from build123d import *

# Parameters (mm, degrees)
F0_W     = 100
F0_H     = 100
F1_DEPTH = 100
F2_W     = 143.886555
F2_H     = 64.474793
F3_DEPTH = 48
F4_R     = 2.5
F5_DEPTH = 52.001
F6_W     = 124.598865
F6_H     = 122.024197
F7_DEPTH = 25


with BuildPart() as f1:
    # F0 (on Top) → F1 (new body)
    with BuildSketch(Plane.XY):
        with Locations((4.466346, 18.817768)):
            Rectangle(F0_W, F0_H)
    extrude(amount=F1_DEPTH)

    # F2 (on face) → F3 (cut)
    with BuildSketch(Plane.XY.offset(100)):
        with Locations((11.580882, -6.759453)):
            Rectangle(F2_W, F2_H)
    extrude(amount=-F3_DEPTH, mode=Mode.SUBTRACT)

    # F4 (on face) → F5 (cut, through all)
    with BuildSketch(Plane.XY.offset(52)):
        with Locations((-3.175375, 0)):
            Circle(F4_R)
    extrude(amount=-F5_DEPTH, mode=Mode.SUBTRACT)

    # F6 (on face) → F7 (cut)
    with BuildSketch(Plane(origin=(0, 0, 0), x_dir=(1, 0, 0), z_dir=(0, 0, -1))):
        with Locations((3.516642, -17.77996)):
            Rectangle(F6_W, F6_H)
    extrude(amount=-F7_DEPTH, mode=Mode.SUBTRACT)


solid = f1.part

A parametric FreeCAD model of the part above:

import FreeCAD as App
import Part
import Sketcher


def add_polygon(sketch, points):
    """Adds a closed chain of lines whose ends are joined by coincident constraints."""
    first, n = sketch.GeometryCount, len(points)
    for a, b in zip(points, points[1:] + points[:1]):
        sketch.addGeometry(Part.LineSegment(App.Vector(*a, 0), App.Vector(*b, 0)), False)
    for i in range(n):
        sketch.addConstraint(Sketcher.Constraint("Coincident", first + i, 2, first + (i + 1) % n, 1))

doc = App.newDocument("Part")
body = doc.addObject("PartDesign::Body", "Body")

# Sketch on XY plane
sketch1 = doc.addObject("Sketcher::SketchObject", "Sketch")
body.addObject(sketch1)
sketch1.AttachmentSupport = (doc.XY_Plane, [""])
sketch1.MapMode = "FlatFace"
add_polygon(sketch1, [(-46, 69), (-46, -31), (54, -31), (54, 69)])  # lines 0-3
sketch1.addConstraint(Sketcher.Constraint("Vertical", 0))
sketch1.addConstraint(Sketcher.Constraint("Horizontal", 1))
sketch1.addConstraint(Sketcher.Constraint("Vertical", 2))
sketch1.addConstraint(Sketcher.Constraint("Horizontal", 3))
sketch1.addConstraint(Sketcher.Constraint("Equal", 3, 0))
sketch1.addConstraint(Sketcher.Constraint("DistanceX", 1, 1, 1, 2, 100.0))
sketch1.addConstraint(Sketcher.Constraint("DistanceY", 0, 2, -1, 1, 31.182232))
sketch1.addConstraint(Sketcher.Constraint("DistanceX", 0, 2, -1, 1, 45.533654))
pad1 = doc.addObject("PartDesign::Pad", "Pad")
body.addObject(pad1)
pad1.Profile = sketch1
pad1.Length = 100

# Sketch on XY plane
sketch2 = doc.addObject("Sketcher::SketchObject", "Sketch001")
body.addObject(sketch2)
sketch2.AttachmentSupport = (doc.XY_Plane, [""])
sketch2.MapMode = "FlatFace"
sketch2.AttachmentOffset = App.Placement(App.Vector(0, 0, 100), App.Rotation())
add_polygon(sketch2, [(-60, 25), (-60, -39), (84, -39), (84, 25)])  # lines 0-3
sketch2.addConstraint(Sketcher.Constraint("Vertical", 0))
sketch2.addConstraint(Sketcher.Constraint("Horizontal", 1))
sketch2.addConstraint(Sketcher.Constraint("Vertical", 2))
sketch2.addConstraint(Sketcher.Constraint("Horizontal", 3))
sketch2.addConstraint(Sketcher.Constraint("DistanceX", 1, 1, 1, 2, 143.886555))
sketch2.addConstraint(Sketcher.Constraint("DistanceY", 0, 2, 0, 1, 64.474793))
sketch2.addConstraint(Sketcher.Constraint("DistanceY", 0, 2, -1, 1, 38.99685))
sketch2.addConstraint(Sketcher.Constraint("DistanceX", -1, 1, 1, 2, 83.524159))
pocket1 = doc.addObject("PartDesign::Pocket", "Pocket")
body.addObject(pocket1)
pocket1.Profile = sketch2
pocket1.Length = 48

# Sketch on XY plane
sketch3 = doc.addObject("Sketcher::SketchObject", "Sketch002")
body.addObject(sketch3)
sketch3.AttachmentSupport = (doc.XY_Plane, [""])
sketch3.MapMode = "FlatFace"
sketch3.AttachmentOffset = App.Placement(App.Vector(0, 0, 52), App.Rotation())
sketch3.addGeometry(Part.Circle(App.Vector(-3.2, 0, 0), App.Vector(0, 0, 1), 2.5), False)
sketch3.addConstraint(Sketcher.Constraint("PointOnObject", 0, 3, -1))
sketch3.addConstraint(Sketcher.Constraint("Diameter", 0, 5.0))
sketch3.addConstraint(Sketcher.Constraint("DistanceX", 0, 3, -1, 1, 3.175375))
pocket2 = doc.addObject("PartDesign::Pocket", "Pocket001")
body.addObject(pocket2)
pocket2.Profile = sketch3
pocket2.Type = "ThroughAll"

# Sketch on XY plane
sketch4 = doc.addObject("Sketcher::SketchObject", "Sketch003")
body.addObject(sketch4)
sketch4.AttachmentSupport = (doc.XY_Plane, [""])
sketch4.MapMode = "FlatFace"
add_polygon(sketch4, [(-59, -43), (-59, 79), (66, 79), (66, -43)])  # lines 0-3
sketch4.addConstraint(Sketcher.Constraint("Vertical", 0))
sketch4.addConstraint(Sketcher.Constraint("Horizontal", 1))
sketch4.addConstraint(Sketcher.Constraint("Vertical", 2))
sketch4.addConstraint(Sketcher.Constraint("Horizontal", 3))
sketch4.addConstraint(Sketcher.Constraint("DistanceX", 1, 1, 1, 2, 124.598865))
sketch4.addConstraint(Sketcher.Constraint("DistanceY", 0, 1, 0, 2, 122.024197))
sketch4.addConstraint(Sketcher.Constraint("DistanceX", 0, 2, -1, 1, 58.78279))
sketch4.addConstraint(Sketcher.Constraint("DistanceY", -1, 1, 0, 2, 78.792058))
pocket3 = doc.addObject("PartDesign::Pocket", "Pocket002")
body.addObject(pocket3)
pocket3.Profile = sketch4
pocket3.Length = 25
pocket3.Reversed = True

doc.recompute()
